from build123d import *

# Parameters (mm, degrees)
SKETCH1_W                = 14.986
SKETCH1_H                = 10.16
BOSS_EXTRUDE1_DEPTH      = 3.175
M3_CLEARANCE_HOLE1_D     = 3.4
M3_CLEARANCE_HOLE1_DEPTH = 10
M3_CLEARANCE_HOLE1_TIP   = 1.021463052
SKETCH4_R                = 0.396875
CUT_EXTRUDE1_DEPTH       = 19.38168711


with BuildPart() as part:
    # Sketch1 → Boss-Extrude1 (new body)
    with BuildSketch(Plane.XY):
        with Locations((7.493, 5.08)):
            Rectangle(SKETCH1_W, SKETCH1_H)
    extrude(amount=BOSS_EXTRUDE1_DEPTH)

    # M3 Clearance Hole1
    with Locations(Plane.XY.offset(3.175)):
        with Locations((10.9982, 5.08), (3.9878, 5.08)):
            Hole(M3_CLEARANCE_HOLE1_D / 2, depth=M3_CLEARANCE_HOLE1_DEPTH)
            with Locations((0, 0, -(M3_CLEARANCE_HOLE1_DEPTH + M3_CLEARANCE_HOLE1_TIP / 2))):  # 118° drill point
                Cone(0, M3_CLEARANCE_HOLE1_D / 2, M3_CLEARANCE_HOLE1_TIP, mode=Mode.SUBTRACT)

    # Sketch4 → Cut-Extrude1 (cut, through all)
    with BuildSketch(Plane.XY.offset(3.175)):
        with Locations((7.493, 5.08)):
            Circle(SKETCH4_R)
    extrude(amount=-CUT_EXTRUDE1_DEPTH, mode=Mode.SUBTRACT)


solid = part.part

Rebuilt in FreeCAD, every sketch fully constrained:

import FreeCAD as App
import Part
import Sketcher

V = App.Vector
Q = App.Units.Quantity


def add_polygon(sketch, points):
    """Adds a closed chain of lines whose ends are joined by coincident constraints."""
    first, n = sketch.GeometryCount, len(points)
    for a, b in zip(points, points[1:] + points[:1]):
        sketch.addGeometry(Part.LineSegment(App.Vector(*a, 0), App.Vector(*b, 0)), False)
    for i in range(n):
        sketch.addConstraint(Sketcher.Constraint("Coincident", first + i, 2, first + (i + 1) % n, 1))

doc = App.newDocument("Part")
params = doc.addObject("Spreadsheet::Sheet", "Params")
for row, (alias, value) in enumerate([
    ("sketch1_height", "0.4 in"),
    ("sketch1_width", "0.59 in"),
    ("pad1_length", "0.125 in"),
    ("hole_diameter", "3.4 mm"),
    ("hole_depth", "10 mm"),
    ("sketch3_diameter", "0.03125 in"),
], start=1):
    params.set(f"A{row}", alias)
    params.set(f"B{row}", "=" + value)
    params.setAlias(f"B{row}", alias)

body = doc.addObject("PartDesign::Body", "Body")

# Sketch on XY plane
sketch1 = body.newObject("Sketcher::SketchObject", "Sketch")
sketch1.AttachmentSupport = (doc.getObject("XY_Plane"), [""])
sketch1.MapMode = "FlatFace"
add_polygon(sketch1, [(0, 10), (0, 0), (15, 0), (15, 10)])  # lines 0-3
sketch1.addConstraint([
    Sketcher.Constraint("Vertical", 0),
    Sketcher.Constraint("Horizontal", 1),
    Sketcher.Constraint("Vertical", 2),
    Sketcher.Constraint("Horizontal", 3),
    Sketcher.Constraint("Coincident", 0, 2, -1, 1),
    Sketcher.Constraint("DistanceY", 0, 2, 0, 1, Q("0.4 in")),
    Sketcher.Constraint("DistanceX", 1, 1, 1, 2, Q("0.59 in")),
])
sketch1.setExpression("Constraints[9]", "Params.sketch1_height")
sketch1.setExpression("Constraints[10]", "Params.sketch1_width")
pad1 = body.newObject("PartDesign::Pad", "Pad")
pad1.Profile = sketch1
pad1.setExpression("Length", "Params.pad1_length")

# Sketch on XY plane
sketch2 = body.newObject("Sketcher::SketchObject", "Sketch001")
sketch2.AttachmentSupport = (doc.getObject("XY_Plane"), [""])
sketch2.MapMode = "FlatFace"
sketch2.AttachmentOffset = App.Placement(V(0, 0, 0.125 * 25.4), App.Rotation())
sketch2.addGeometry([
    Part.Circle(V(11, 5.1, 0), V(0, 0, 1), 1.7),
    Part.Circle(V(4, 5.1, 0), V(0, 0, 1), 1.7),
], False)
sketch2.addConstraint([
    Sketcher.Constraint("Equal", 0, 1),
    Sketcher.Constraint("Horizontal", 0, 3, 1, 3),
    Sketcher.Constraint("DistanceY", -1, 1, 0, 3, Q("0.2 in")),
    Sketcher.Constraint("Diameter", 0, 3.4),
    Sketcher.Constraint("DistanceX", -1, 1, 0, 3, Q("0.433 in")),
    Sketcher.Constraint("DistanceX", -1, 1, 1, 3, Q("0.157 in")),
])
doc.recompute()
hole = body.newObject("PartDesign::Hole", "Hole")
hole.Profile = sketch2
hole.ThreadType = "None"
hole.setExpression("Diameter", "Params.hole_diameter")
hole.DepthType = "Dimension"
hole.setExpression("Depth", "Params.hole_depth")
hole.DrillPoint = "Angled"
hole.DrillPointAngle = 118

# Sketch on XY plane
sketch3 = body.newObject("Sketcher::SketchObject", "Sketch002")
sketch3.AttachmentSupport = (doc.getObject("XY_Plane"), [""])
sketch3.MapMode = "FlatFace"
sketch3.AttachmentOffset = App.Placement(V(0, 0, 0.125 * 25.4), App.Rotation())
sketch3.addGeometry(Part.Circle(V(7.49, 5.08, 0), V(0, 0, 1), 0.4), False)
sketch3.addConstraint([
    Sketcher.Constraint("Diameter", 0, Q("0.03125 in")),
    Sketcher.Constraint("DistanceY", -1, 1, 0, 3, Q("0.2 in")),
    Sketcher.Constraint("DistanceX", -1, 1, 0, 3, Q("0.295 in")),
])
sketch3.setExpression("Constraints[0]", "Params.sketch3_diameter")
pocket1 = body.newObject("PartDesign::Pocket", "Pocket")
pocket1.Profile = sketch3
pocket1.Type = "ThroughAll"

doc.recompute()
